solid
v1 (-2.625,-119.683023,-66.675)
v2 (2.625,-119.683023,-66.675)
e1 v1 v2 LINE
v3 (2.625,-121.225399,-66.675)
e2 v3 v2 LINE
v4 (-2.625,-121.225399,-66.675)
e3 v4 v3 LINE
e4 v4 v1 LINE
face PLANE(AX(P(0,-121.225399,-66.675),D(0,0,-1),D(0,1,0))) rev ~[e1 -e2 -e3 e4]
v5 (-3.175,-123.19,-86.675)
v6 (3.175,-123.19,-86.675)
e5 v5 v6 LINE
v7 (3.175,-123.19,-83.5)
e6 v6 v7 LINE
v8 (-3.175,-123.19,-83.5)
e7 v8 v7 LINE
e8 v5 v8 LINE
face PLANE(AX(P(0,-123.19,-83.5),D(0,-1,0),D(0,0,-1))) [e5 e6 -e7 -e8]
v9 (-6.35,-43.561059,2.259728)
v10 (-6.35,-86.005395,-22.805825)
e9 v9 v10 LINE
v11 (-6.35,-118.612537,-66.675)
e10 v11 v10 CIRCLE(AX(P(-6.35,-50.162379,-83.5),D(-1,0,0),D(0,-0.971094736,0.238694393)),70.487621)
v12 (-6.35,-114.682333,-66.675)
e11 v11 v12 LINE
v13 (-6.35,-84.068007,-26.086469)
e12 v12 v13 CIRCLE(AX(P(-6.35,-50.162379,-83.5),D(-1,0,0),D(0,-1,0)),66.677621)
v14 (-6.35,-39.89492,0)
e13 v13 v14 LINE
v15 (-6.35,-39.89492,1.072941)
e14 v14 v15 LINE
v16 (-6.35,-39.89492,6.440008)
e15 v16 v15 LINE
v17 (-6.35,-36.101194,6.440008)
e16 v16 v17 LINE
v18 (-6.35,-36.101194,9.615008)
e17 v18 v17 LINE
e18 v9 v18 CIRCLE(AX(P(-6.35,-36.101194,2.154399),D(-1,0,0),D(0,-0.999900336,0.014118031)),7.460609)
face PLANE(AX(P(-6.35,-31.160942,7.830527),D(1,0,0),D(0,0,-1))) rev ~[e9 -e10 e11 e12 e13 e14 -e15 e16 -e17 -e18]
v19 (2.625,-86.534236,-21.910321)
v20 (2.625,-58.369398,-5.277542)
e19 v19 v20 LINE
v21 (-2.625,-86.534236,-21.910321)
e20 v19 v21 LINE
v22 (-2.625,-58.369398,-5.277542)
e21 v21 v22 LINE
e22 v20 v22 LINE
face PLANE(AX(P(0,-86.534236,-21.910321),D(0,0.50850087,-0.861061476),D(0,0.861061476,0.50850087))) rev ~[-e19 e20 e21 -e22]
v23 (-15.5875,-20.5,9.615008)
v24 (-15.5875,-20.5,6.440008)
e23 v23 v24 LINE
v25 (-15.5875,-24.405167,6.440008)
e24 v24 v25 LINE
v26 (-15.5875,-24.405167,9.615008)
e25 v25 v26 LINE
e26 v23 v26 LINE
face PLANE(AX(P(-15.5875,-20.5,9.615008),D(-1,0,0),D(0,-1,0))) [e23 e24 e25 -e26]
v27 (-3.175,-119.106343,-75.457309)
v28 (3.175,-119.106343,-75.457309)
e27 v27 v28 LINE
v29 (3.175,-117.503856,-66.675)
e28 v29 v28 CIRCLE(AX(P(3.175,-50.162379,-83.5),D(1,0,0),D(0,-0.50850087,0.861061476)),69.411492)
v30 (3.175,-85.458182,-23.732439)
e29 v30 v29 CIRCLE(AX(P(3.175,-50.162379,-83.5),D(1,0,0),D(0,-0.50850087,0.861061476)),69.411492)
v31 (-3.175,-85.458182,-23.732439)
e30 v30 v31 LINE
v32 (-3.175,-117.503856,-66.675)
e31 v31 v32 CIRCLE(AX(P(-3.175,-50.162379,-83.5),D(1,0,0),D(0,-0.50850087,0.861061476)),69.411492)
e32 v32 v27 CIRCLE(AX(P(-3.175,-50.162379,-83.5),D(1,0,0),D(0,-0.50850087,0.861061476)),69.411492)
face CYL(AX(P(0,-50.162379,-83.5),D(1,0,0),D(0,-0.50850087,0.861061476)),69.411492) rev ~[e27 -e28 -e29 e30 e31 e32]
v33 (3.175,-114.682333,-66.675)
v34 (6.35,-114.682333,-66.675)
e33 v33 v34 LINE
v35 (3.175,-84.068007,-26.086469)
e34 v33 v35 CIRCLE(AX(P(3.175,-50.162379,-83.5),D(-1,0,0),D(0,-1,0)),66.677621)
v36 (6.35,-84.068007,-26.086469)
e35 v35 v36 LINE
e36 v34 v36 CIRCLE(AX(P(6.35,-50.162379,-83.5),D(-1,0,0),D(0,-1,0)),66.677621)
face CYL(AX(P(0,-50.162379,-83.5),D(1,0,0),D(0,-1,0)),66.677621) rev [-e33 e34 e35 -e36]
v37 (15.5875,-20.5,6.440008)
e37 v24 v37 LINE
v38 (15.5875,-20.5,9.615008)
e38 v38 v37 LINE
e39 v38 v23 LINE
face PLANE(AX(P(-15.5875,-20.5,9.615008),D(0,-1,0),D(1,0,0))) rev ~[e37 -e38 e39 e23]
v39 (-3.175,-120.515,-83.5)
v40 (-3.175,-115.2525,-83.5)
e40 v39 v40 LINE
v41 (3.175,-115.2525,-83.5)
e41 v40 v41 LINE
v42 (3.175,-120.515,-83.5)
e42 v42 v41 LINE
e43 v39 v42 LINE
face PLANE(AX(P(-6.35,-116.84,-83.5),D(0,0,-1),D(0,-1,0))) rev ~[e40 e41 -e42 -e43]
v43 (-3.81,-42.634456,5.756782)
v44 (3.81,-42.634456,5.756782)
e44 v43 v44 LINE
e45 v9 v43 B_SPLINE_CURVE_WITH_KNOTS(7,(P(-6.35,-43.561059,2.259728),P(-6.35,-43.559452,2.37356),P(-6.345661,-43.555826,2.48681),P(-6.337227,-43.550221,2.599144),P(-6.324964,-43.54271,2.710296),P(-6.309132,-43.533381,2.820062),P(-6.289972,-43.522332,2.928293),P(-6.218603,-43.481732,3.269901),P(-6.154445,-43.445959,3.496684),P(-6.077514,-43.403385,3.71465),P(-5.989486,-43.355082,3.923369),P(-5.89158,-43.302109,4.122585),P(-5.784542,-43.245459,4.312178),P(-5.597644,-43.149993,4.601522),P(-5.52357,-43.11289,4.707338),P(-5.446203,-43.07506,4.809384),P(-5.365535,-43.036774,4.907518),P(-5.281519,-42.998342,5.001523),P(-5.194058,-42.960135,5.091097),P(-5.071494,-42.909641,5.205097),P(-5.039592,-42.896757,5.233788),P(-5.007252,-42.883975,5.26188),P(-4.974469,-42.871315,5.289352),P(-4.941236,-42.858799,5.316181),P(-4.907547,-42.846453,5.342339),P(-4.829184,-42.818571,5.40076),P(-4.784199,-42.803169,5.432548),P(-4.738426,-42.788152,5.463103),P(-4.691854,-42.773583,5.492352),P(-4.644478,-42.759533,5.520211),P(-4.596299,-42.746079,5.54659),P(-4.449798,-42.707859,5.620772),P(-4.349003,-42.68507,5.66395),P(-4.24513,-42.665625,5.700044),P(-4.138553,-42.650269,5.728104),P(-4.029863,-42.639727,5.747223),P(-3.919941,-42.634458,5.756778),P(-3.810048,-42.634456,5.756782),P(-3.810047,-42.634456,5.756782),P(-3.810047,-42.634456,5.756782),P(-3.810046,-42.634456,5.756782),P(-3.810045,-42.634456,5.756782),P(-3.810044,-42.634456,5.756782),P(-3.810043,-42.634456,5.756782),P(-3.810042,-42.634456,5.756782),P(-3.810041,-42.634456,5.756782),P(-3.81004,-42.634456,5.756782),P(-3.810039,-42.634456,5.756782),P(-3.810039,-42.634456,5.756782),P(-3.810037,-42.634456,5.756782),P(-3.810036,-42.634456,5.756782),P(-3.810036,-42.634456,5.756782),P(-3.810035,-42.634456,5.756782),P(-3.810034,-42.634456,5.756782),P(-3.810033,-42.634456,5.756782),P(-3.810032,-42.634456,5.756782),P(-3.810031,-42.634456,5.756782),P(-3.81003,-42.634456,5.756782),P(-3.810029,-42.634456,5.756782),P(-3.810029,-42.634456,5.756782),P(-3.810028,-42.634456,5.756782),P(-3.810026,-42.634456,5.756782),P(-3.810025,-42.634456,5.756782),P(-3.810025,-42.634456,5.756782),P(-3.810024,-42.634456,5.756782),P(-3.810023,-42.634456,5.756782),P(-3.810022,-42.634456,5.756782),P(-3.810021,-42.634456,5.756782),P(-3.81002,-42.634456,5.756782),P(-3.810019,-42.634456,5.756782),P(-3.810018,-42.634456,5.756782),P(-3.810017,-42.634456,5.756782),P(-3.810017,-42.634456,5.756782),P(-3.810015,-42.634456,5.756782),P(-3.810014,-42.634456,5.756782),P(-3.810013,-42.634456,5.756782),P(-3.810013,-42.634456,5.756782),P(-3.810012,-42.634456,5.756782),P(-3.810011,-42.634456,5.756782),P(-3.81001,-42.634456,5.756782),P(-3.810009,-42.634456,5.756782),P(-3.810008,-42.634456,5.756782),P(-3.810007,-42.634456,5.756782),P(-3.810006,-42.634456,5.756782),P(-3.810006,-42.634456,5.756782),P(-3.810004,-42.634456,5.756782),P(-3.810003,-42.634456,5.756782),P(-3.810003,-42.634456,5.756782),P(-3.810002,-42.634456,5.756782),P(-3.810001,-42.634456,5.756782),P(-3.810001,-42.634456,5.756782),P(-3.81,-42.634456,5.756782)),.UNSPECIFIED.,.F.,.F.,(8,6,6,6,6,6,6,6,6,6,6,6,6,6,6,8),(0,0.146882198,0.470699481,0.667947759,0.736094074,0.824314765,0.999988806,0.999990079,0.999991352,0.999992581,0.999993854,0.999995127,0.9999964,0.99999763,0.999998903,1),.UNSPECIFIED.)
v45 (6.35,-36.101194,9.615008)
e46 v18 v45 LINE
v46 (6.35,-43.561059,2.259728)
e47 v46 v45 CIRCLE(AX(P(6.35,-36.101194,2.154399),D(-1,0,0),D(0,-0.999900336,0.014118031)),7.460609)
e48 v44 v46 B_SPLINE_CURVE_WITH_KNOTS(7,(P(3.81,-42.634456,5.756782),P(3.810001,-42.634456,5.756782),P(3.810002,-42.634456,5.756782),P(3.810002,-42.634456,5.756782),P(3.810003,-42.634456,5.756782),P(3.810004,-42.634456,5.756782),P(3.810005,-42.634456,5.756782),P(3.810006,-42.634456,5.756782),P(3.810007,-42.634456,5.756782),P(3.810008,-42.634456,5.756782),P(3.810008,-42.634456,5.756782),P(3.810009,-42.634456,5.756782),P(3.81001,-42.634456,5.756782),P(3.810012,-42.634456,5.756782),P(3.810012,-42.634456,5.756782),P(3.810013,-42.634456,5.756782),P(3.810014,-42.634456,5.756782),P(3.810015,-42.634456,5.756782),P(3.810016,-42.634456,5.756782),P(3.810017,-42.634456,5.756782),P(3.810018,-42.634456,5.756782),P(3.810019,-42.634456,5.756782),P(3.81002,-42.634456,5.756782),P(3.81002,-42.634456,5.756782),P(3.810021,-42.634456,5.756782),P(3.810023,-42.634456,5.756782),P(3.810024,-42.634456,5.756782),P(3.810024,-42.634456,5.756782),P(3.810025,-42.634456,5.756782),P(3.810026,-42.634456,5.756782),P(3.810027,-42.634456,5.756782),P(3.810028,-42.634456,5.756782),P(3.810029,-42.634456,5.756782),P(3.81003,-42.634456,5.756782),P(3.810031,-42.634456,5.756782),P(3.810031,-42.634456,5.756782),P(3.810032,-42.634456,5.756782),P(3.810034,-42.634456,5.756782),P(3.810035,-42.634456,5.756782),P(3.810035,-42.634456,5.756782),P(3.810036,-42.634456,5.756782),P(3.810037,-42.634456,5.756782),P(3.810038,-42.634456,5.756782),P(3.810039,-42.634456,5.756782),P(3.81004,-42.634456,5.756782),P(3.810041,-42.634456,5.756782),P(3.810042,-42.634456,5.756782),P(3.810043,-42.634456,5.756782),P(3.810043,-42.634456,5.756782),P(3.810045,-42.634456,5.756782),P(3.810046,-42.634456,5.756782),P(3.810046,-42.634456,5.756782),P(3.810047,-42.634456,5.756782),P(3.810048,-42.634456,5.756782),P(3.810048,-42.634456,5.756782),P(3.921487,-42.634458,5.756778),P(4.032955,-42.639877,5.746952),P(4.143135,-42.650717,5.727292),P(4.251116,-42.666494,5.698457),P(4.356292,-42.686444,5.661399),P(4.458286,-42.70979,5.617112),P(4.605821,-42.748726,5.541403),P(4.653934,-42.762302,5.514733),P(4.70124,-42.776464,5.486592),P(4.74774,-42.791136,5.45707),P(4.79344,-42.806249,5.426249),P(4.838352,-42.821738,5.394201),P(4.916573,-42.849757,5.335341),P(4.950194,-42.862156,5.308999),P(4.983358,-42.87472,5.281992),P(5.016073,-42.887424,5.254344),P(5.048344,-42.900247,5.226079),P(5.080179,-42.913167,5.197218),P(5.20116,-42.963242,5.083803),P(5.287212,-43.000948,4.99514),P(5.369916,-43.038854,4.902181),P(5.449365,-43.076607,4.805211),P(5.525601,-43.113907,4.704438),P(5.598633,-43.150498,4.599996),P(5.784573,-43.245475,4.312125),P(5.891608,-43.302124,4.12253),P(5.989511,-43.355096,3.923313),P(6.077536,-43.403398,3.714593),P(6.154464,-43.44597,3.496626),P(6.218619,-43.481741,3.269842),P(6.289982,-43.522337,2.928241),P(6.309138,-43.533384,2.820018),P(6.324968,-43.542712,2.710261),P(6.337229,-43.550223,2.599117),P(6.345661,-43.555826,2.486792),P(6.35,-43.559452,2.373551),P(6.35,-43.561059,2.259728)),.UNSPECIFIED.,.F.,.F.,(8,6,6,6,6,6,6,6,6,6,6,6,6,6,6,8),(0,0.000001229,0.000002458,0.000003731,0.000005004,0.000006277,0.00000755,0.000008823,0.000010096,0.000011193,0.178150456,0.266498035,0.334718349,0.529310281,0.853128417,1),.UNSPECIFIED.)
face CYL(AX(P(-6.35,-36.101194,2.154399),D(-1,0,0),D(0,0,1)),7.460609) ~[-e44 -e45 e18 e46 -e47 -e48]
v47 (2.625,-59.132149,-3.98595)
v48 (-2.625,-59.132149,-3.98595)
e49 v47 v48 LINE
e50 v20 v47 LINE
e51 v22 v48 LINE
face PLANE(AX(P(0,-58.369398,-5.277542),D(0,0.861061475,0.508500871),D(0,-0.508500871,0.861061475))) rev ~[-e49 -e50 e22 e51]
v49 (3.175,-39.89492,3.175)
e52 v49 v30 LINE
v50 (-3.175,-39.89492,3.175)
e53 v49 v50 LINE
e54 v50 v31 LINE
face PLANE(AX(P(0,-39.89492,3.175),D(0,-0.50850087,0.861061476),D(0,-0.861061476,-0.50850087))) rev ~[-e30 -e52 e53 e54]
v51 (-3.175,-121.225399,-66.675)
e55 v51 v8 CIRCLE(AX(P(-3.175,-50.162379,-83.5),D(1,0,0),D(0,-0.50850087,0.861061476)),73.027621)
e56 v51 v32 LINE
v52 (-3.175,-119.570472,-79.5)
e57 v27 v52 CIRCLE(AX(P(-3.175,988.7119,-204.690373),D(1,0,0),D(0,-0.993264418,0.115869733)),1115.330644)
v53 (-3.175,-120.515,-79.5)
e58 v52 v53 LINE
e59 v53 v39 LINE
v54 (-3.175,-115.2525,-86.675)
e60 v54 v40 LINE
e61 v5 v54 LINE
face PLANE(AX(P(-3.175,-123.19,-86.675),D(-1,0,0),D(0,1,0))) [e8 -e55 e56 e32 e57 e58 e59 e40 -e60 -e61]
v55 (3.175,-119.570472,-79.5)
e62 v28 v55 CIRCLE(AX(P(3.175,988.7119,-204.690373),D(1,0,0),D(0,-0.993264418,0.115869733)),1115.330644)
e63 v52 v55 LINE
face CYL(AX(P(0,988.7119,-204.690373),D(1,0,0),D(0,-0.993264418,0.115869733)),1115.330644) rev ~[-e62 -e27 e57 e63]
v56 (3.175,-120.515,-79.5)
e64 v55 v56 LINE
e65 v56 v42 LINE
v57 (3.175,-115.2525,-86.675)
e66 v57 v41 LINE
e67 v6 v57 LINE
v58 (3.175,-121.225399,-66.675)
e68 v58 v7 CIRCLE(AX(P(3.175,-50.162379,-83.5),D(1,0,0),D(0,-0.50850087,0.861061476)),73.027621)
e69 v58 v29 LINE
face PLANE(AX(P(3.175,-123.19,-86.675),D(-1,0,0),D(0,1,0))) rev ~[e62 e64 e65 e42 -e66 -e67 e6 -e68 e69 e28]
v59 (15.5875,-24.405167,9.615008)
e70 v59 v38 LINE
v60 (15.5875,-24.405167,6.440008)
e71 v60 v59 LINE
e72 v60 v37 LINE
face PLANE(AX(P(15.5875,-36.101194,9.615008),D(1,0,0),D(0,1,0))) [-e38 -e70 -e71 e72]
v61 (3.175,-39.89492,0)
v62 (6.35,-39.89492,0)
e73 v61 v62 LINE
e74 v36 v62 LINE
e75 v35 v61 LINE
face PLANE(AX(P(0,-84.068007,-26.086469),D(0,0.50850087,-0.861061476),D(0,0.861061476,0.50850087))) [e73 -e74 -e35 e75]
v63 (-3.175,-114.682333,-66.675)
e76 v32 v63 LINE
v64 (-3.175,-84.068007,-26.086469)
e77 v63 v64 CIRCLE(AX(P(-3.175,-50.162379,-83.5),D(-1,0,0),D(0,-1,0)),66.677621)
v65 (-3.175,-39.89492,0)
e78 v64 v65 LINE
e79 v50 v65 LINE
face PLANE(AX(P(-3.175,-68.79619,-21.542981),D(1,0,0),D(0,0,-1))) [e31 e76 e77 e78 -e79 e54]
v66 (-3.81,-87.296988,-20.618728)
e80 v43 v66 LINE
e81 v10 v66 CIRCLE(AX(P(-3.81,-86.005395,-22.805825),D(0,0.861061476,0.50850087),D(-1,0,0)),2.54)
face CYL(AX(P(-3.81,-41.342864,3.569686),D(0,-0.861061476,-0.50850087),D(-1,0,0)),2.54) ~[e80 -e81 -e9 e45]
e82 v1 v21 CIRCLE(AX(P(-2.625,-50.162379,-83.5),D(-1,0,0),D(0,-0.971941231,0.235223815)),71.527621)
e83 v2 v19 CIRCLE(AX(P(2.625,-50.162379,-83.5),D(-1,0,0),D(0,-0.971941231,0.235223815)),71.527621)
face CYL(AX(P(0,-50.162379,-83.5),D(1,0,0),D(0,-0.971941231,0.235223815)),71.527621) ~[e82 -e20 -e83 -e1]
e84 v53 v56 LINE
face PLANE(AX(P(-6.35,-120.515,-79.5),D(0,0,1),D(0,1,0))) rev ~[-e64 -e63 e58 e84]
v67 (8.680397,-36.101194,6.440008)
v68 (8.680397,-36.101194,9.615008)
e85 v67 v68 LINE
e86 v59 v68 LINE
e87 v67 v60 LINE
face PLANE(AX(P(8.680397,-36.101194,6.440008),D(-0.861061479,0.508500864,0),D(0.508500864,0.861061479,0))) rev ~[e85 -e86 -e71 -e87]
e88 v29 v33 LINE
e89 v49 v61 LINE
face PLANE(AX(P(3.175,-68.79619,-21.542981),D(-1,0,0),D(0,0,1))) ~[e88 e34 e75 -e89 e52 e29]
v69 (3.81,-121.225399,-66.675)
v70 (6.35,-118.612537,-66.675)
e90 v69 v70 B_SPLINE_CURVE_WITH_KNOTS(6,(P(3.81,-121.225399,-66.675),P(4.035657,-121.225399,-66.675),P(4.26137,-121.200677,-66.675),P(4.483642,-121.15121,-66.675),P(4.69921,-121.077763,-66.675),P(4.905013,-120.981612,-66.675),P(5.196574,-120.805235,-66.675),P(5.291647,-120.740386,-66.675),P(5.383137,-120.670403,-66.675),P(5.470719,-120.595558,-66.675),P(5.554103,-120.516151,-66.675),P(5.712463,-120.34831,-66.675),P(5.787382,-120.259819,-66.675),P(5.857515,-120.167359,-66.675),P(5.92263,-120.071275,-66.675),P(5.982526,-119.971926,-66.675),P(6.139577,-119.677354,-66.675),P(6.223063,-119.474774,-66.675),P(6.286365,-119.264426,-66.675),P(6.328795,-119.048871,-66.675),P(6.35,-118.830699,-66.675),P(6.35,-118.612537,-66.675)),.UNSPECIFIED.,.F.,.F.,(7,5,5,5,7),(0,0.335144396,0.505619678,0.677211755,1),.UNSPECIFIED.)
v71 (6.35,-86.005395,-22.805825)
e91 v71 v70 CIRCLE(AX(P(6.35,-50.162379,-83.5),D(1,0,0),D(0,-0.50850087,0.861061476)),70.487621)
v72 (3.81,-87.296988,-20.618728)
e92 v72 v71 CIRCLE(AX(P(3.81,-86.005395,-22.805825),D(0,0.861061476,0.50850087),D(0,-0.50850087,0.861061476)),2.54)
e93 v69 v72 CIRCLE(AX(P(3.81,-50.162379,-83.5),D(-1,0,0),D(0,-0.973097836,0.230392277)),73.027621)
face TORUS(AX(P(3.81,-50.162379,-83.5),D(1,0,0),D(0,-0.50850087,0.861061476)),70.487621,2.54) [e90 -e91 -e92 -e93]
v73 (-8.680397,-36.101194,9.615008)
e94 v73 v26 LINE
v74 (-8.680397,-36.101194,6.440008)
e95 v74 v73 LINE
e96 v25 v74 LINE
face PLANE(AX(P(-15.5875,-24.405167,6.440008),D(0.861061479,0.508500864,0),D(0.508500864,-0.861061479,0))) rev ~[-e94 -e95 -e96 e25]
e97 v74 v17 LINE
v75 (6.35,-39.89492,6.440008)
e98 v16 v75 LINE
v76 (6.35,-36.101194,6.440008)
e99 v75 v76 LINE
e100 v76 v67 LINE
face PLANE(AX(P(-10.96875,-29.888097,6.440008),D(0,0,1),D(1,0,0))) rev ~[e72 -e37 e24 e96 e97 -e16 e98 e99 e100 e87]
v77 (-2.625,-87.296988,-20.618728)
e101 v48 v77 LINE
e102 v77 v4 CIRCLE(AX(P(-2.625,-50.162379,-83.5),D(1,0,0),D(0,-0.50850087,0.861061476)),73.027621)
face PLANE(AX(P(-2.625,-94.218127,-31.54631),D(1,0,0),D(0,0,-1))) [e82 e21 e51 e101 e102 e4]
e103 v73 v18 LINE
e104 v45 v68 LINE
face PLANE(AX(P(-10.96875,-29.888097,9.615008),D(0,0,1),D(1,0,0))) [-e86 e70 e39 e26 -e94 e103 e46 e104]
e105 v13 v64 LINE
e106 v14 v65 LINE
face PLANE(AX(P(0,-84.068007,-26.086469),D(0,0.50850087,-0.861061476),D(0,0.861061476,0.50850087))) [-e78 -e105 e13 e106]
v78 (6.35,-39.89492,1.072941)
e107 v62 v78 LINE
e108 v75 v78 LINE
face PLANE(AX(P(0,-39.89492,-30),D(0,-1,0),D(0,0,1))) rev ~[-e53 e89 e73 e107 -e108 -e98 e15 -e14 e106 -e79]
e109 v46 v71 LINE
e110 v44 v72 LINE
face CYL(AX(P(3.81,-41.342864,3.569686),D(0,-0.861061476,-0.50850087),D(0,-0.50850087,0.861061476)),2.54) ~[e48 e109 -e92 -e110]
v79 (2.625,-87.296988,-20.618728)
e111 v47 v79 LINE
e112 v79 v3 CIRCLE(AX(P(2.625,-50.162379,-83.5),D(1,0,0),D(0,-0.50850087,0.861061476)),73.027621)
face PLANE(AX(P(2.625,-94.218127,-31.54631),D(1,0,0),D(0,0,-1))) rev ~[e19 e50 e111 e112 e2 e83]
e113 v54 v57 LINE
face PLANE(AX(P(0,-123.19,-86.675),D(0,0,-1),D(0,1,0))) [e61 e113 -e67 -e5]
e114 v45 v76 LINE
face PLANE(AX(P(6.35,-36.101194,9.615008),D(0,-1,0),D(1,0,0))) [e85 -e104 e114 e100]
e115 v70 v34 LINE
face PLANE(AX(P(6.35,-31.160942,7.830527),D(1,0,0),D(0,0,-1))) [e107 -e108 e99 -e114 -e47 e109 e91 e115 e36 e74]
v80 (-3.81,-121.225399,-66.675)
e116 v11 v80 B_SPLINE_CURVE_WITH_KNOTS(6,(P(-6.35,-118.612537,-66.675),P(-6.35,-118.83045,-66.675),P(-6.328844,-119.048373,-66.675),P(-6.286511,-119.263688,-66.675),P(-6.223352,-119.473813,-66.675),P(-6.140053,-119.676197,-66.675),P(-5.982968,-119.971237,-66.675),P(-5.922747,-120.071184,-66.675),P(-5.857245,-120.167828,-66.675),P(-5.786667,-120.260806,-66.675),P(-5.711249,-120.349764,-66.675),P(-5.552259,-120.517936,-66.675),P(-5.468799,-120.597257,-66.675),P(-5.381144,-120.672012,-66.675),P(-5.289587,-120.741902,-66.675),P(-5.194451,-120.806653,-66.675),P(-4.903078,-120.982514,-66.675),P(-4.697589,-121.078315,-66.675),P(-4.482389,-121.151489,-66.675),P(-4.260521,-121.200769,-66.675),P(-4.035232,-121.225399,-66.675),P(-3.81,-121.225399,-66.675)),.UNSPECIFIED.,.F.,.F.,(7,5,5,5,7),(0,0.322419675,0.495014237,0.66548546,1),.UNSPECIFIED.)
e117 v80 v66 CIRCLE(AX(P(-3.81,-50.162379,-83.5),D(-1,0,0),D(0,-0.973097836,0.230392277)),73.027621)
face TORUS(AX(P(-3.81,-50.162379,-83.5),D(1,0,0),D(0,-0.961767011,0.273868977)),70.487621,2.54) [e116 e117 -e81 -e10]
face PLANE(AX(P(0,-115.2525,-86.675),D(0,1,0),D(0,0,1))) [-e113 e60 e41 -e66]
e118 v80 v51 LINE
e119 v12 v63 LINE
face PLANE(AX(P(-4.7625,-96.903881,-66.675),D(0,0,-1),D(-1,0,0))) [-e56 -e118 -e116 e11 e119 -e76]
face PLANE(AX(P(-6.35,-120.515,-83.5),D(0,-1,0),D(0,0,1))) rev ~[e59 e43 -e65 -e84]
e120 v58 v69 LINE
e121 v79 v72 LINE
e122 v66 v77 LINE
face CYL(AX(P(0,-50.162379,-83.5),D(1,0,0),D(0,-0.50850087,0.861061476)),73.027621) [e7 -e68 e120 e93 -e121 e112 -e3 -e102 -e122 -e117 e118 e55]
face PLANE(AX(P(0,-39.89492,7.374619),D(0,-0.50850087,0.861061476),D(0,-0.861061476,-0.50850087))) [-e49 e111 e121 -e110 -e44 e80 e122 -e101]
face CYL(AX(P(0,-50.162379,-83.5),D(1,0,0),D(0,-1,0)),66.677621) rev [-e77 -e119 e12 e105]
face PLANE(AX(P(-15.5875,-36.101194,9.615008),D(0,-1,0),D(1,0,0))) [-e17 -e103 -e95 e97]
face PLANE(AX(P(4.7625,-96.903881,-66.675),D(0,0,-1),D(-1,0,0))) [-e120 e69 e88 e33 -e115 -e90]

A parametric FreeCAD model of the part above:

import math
import FreeCAD as App
import Part
import Sketcher
Q = App.Units.Quantity


def edges_at(feature, points):
    """Names of the edges that pass closest to the given points."""
    edges = feature.Shape.Edges
    near = lambda p: min(range(len(edges)), key=lambda i: edges[i].distToShape(Part.Vertex(*p))[0])
    return sorted({f"Edge{near(p) + 1}" for p in points})


def add_polygon(sketch, points):
    """Adds a closed chain of lines whose ends are joined by coincident constraints."""
    first, n = sketch.GeometryCount, len(points)
    for a, b in zip(points, points[1:] + points[:1]):
        sketch.addGeometry(Part.LineSegment(App.Vector(*a, 0), App.Vector(*b, 0)), False)
    for i in range(n):
        sketch.addConstraint(Sketcher.Constraint("Coincident", first + i, 2, first + (i + 1) % n, 1))

doc = App.newDocument("Part")
body = doc.addObject("PartDesign::Body", "Body")

sketch1 = body.newObject("Sketcher::SketchObject", "Sketch")
sketch1.AttachmentSupport = (doc.getObject("YZ_Plane"), [""])
sketch1.MapMode = "FlatFace"
add_polygon(sketch1, [(0, 30), (-50.8, 0), (0, 0)])
sketch1.addConstraint(Sketcher.Constraint("Horizontal", 1))
sketch1.addConstraint(Sketcher.Constraint("Vertical", 2))
sketch1.addConstraint(Sketcher.Constraint("Coincident", 1, 2, -1, 1))
sketch1.addConstraint(Sketcher.Constraint("DistanceX", 1, 1, 1, 2, Q("2 in")))
sketch1.addConstraint(Sketcher.Constraint("DistanceY", 2, 1, 2, 2, Q("30 mm")))
revolution = body.newObject("PartDesign::Revolution", "Revolution")
revolution.Profile = sketch1
revolution.ReferenceAxis = (sketch1, ["H_Axis"])
revolution.Angle = 360

sketch2 = body.newObject("Sketcher::SketchObject", "Sketch001")
sketch2.AttachmentSupport = (doc.getObject("YZ_Plane"), [""])
sketch2.MapMode = "FlatFace"
add_polygon(sketch2, [(0, 24.92), (-45.72, 0), (0, 0)])
sketch2.addConstraint(Sketcher.Constraint("Horizontal", 1))
sketch2.addConstraint(Sketcher.Constraint("Vertical", 2))
sketch2.addConstraint(Sketcher.Constraint("Coincident", 1, 2, -1, 1))
sketch2.addConstraint(Sketcher.Constraint("DistanceX", 1, 1, 1, 2, Q("1.8 in")))
sketch2.addConstraint(Sketcher.Constraint("DistanceY", 2, 1, 2, 2, Q("24.92 mm")))
groove = body.newObject("PartDesign::Groove", "Groove")
groove.Profile = sketch2
groove.ReferenceAxis = (sketch2, ["H_Axis"])
groove.Angle = 360

sketch3 = body.newObject("Sketcher::SketchObject", "Sketch002")
sketch3.AttachmentSupport = (doc.getObject("YZ_Plane"), [""])
sketch3.MapMode = "FlatFace"
add_polygon(sketch3, [(-39.89492, 6.440008), (-55.729611, 6.440008), (-55.729611, -6.440008), (-39.89492, -6.440008)])
sketch3.addConstraint(Sketcher.Constraint("Horizontal", 0))
sketch3.addConstraint(Sketcher.Constraint("Vertical", 1))
sketch3.addConstraint(Sketcher.Constraint("Horizontal", 2))
sketch3.addConstraint(Sketcher.Constraint("Vertical", 3))
sketch3.addConstraint(Sketcher.Constraint("DistanceX", 0, 2, 0, 1, Q("15.834691 mm")))
sketch3.addConstraint(Sketcher.Constraint("DistanceY", 1, 2, 1, 1, Q("12.880016 mm")))
sketch3.addConstraint(Sketcher.Constraint("DistanceX", 0, 2, -1, 1, Q("55.729611 mm")))
sketch3.addConstraint(Sketcher.Constraint("DistanceY", -1, 1, 0, 2, Q("6.440008 mm")))
pocket1 = body.newObject("PartDesign::Pocket", "Pocket")
pocket1.Profile = sketch3
pocket1.Length = Q("0.6 in")
pocket1.Midplane = True

sketch4 = body.newObject("Sketcher::SketchObject", "Sketch003")
sketch4.AttachmentSupport = (doc.getObject("XY_Plane"), [""])
sketch4.MapMode = "FlatFace"
sketch4.AttachmentOffset = App.Placement(App.Vector(0, 0, 30), App.Rotation())
add_polygon(sketch4, [(3.175, 0), (3.175, -3.175), (6.35, -3.175), (6.35, 0)])
sketch4.addConstraint(Sketcher.Constraint("Vertical", 0))
sketch4.addConstraint(Sketcher.Constraint("Horizontal", 1))
sketch4.addConstraint(Sketcher.Constraint("Vertical", 2))
sketch4.addConstraint(Sketcher.Constraint("Horizontal", 3))
sketch4.addConstraint(Sketcher.Constraint("PointOnObject", 2, 2, -1))
sketch4.addConstraint(Sketcher.Constraint("Equal", 3, 0))
sketch4.addConstraint(Sketcher.Constraint("DistanceX", 1, 1, 1, 2, Q("0.125 in")))
sketch4.addConstraint(Sketcher.Constraint("DistanceX", -1, 1, 1, 2, Q("0.25 in")))
pocket2 = body.newObject("PartDesign::Pocket", "Pocket001")
pocket2.Profile = sketch4
pocket2.Length = 7.69691

sketch5 = body.newObject("Sketcher::SketchObject", "Sketch004")
sketch5.AttachmentSupport = (doc.getObject("XY_Plane"), [""])
sketch5.MapMode = "FlatFace"
sketch5.AttachmentOffset = App.Placement(App.Vector(0, 0, 30), App.Rotation())
add_polygon(sketch5, [(-6.35, 0), (-6.35, -3.175), (-3.175, -3.175), (-3.175, 0)])
sketch5.addConstraint(Sketcher.Constraint("Vertical", 0))
sketch5.addConstraint(Sketcher.Constraint("Horizontal", 1))
sketch5.addConstraint(Sketcher.Constraint("Vertical", 2))
sketch5.addConstraint(Sketcher.Constraint("Horizontal", 3))
sketch5.addConstraint(Sketcher.Constraint("PointOnObject", 2, 2, -1))
sketch5.addConstraint(Sketcher.Constraint("Equal", 3, 0))
sketch5.addConstraint(Sketcher.Constraint("DistanceX", 1, 1, 1, 2, Q("0.125 in")))
sketch5.addConstraint(Sketcher.Constraint("DistanceX", 0, 2, -1, 1, Q("0.25 in")))
pocket3 = body.newObject("PartDesign::Pocket", "Pocket002")
pocket3.Profile = sketch5
pocket3.Length = 7.69691

sketch6 = body.newObject("Sketcher::SketchObject", "Sketch005")
sketch6.AttachmentSupport = (doc.getObject("YZ_Plane"), [""])
sketch6.MapMode = "FlatFace"
sketch6.addGeometry(Part.LineSegment(App.Vector(-39.89492, 7.374619, 0), App.Vector(-87.296988, -20.618728, 0)), False)
sketch6.addGeometry(Part.ArcOfCircle(Part.Circle(App.Vector(-50.162379, -83.5, 0), App.Vector(0, 0, 1), 73.027621), math.radians(120.564025), math.radians(164.105376)), False)
sketch6.addGeometry(Part.ArcOfCircle(Part.Circle(App.Vector(-50.162379, -83.5, 0), App.Vector(0, 0, 1), 73.027621), math.radians(164.105376), math.radians(180)), False)
sketch6.addGeometry(Part.LineSegment(App.Vector(-123.19, -83.5, 0), App.Vector(-123.19, -86.675, 0)), False)
sketch6.addGeometry(Part.LineSegment(App.Vector(-123.19, -86.675, 0), App.Vector(-115.2525, -86.675, 0)), False)
sketch6.addGeometry(Part.LineSegment(App.Vector(-115.2525, -86.675, 0), App.Vector(-115.2525, -83.5, 0)), False)
sketch6.addGeometry(Part.LineSegment(App.Vector(-115.2525, -83.5, 0), App.Vector(-116.84, -83.5, 0)), False)
sketch6.addGeometry(Part.ArcOfCircle(Part.Circle(App.Vector(-50.162379, -83.5, 0), App.Vector(0, 0, 1), 66.677621), math.radians(120.564025), math.radians(180)), False)
sketch6.addGeometry(Part.LineSegment(App.Vector(-84.068007, -26.086469, 0), App.Vector(0, 23.559992, 0)), False)
sketch6.addGeometry(Part.LineSegment(App.Vector(0, 23.559992, 0), App.Vector(0, 30.934611, 0)), False)
sketch6.addGeometry(Part.LineSegment(App.Vector(0, 30.934611, 0), App.Vector(-39.89492, 7.374619, 0)), False)
sketch6.addConstraint(Sketcher.Constraint("Tangent", 0, 2, 1, 1))
sketch6.addConstraint(Sketcher.Constraint("Tangent", 1, 2, 2, 1))
sketch6.addConstraint(Sketcher.Constraint("Tangent", 2, 2, 3, 1))
sketch6.addConstraint(Sketcher.Constraint("Coincident", 3, 2, 4, 1))
sketch6.addConstraint(Sketcher.Constraint("Coincident", 4, 2, 5, 1))
sketch6.addConstraint(Sketcher.Constraint("Coincident", 5, 2, 6, 1))
sketch6.addConstraint(Sketcher.Constraint("Coincident", 6, 2, 7, 2))
sketch6.addConstraint(Sketcher.Constraint("Tangent", 7, 1, 8, 1))
sketch6.addConstraint(Sketcher.Constraint("Coincident", 8, 2, 9, 1))
sketch6.addConstraint(Sketcher.Constraint("Coincident", 9, 2, 10, 1))
sketch6.addConstraint(Sketcher.Constraint("Coincident", 10, 2, 0, 1))
sketch6.addConstraint(Sketcher.Constraint("Vertical", 3))
sketch6.addConstraint(Sketcher.Constraint("Horizontal", 4))
sketch6.addConstraint(Sketcher.Constraint("Vertical", 5))
sketch6.addConstraint(Sketcher.Constraint("Horizontal", 6))
sketch6.addConstraint(Sketcher.Constraint("Vertical", 9))
sketch6.addConstraint(Sketcher.Constraint("Coincident", 7, 3, 1, 3))
sketch6.addConstraint(Sketcher.Constraint("Equal", 1, 2))
sketch6.addConstraint(Sketcher.Constraint("PointOnObject", 8, 2, -2))
sketch6.addConstraint(Sketcher.Constraint("Parallel", 0, 8))
sketch6.addConstraint(Sketcher.Constraint("Parallel", 8, 10))
sketch6.addConstraint(Sketcher.Constraint("Horizontal", 2, 2, 5, 2))
sketch6.addConstraint(Sketcher.Constraint("DistanceY", 1, 2, -1, 1, Q("2.5 in")))
sketch6.addConstraint(Sketcher.Constraint("DistanceX", 6, 2, -1, 1, Q("4.6 in")))
sketch6.addConstraint(Sketcher.Constraint("DistanceX", 4, 1, 4, 2, Q("0.3125 in")))
sketch6.addConstraint(Sketcher.Constraint("DistanceX", 6, 2, 6, 1, Q("0.0625 in")))
sketch6.addConstraint(Sketcher.Constraint("DistanceY", 3, 2, 3, 1, Q("0.125 in")))
sketch6.addConstraint(Sketcher.Constraint("Radius", 1, Q("73.027621 mm")))
sketch6.addConstraint(Sketcher.Constraint("DistanceY", 9, 1, 9, 2, Q("7.374619 mm")))
sketch6.addConstraint(Sketcher.Constraint("DistanceY", 1, 3, -1, 1, Q("83.5 mm")))
sketch6.addConstraint(Sketcher.Constraint("DistanceX", 10, 2, -1, 1, Q("39.89492 mm")))
pad1 = body.newObject("PartDesign::Pad", "Pad")
pad1.Profile = sketch6
pad1.Length = Q("0.5 in")
pad1.Midplane = True

sketch7 = body.newObject("Sketcher::SketchObject", "Sketch006")
sketch7.AttachmentSupport = (doc.getObject("YZ_Plane"), [""])
sketch7.MapMode = "FlatFace"
sketch7.addGeometry(Part.LineSegment(App.Vector(-39.89492, 3.175, 0), App.Vector(-85.458182, -23.732439, 0)), False)
sketch7.addGeometry(Part.ArcOfCircle(Part.Circle(App.Vector(-50.162379, -83.5, 0), App.Vector(0, 0, 1), 69.411492), math.radians(120.564025), math.radians(173.346208)), False)
sketch7.addGeometry(Part.ArcOfCircle(Part.Circle(App.Vector(988.7119, -204.690373, 0), App.Vector(0, 0, 1), 1115.330644), math.radians(173.346208), math.radians(173.761999)), False)
sketch7.addGeometry(Part.LineSegment(App.Vector(-120.015, -83.5, 0), App.Vector(-116.84, -83.5, 0)), False)
sketch7.addGeometry(Part.ArcOfCircle(Part.Circle(App.Vector(-50.162379, -83.5, 0), App.Vector(0, 0, 1), 66.677621), math.radians(120.564025), math.radians(180)), False)
sketch7.addGeometry(Part.LineSegment(App.Vector(-84.068007, -26.086469, 0), App.Vector(0, 23.559992, 0)), False)
sketch7.addGeometry(Part.LineSegment(App.Vector(0, 23.559992, 0), App.Vector(0, 26.734992, 0)), False)
sketch7.addGeometry(Part.LineSegment(App.Vector(0, 26.734992, 0), App.Vector(-39.89492, 3.175, 0)), False)
sketch7.addConstraint(Sketcher.Constraint("Coincident", 0, 2, 1, 1))
sketch7.addConstraint(Sketcher.Constraint("Coincident", 1, 2, 2, 1))
sketch7.addConstraint(Sketcher.Constraint("Coincident", 2, 2, 3, 1))
sketch7.addConstraint(Sketcher.Constraint("Coincident", 3, 2, 4, 2))
sketch7.addConstraint(Sketcher.Constraint("Coincident", 4, 1, 5, 1))
sketch7.addConstraint(Sketcher.Constraint("Coincident", 5, 2, 6, 1))
sketch7.addConstraint(Sketcher.Constraint("Coincident", 6, 2, 7, 1))
sketch7.addConstraint(Sketcher.Constraint("Coincident", 7, 2, 0, 1))
sketch7.addConstraint(Sketcher.Constraint("Horizontal", 3))
sketch7.addConstraint(Sketcher.Constraint("Vertical", 6))
sketch7.addConstraint(Sketcher.Constraint("Coincident", 4, 3, 1, 3))
sketch7.addConstraint(Sketcher.Constraint("PointOnObject", 5, 2, -2))
sketch7.addConstraint(Sketcher.Constraint("DistanceX", 3, 2, -1, 1, Q("4.6 in")))
sketch7.addConstraint(Sketcher.Constraint("DistanceX", 3, 1, 3, 2, Q("0.125 in")))
sketch7.addConstraint(Sketcher.Constraint("DistanceY", 6, 1, 6, 2, Q("0.125 in")))
sketch7.addConstraint(Sketcher.Constraint("DistanceY", -1, 1, 7, 2, Q("0.125 in")))
sketch7.addConstraint(Sketcher.Constraint("Radius", 1, Q("69.411492 mm")))
sketch7.addConstraint(Sketcher.Constraint("Radius", 4, Q("66.677621 mm")))
sketch7.addConstraint(Sketcher.Constraint("Radius", 2, Q("1115.330644 mm")))
sketch7.addConstraint(Sketcher.Constraint("DistanceY", 1, 3, -1, 1, Q("83.5 mm")))
sketch7.addConstraint(Sketcher.Constraint("DistanceX", -1, 1, 2, 3, Q("988.7119 mm")))
sketch7.addConstraint(Sketcher.Constraint("DistanceY", 1, 2, 5, 2, Q("99.017301 mm")))
sketch7.addConstraint(Sketcher.Constraint("Distance", 5, Q("97.632991 mm")))
sketch7.addConstraint(Sketcher.Constraint("DistanceY", 0, 2, -1, 1, Q("23.732439 mm")))
sketch7.addConstraint(Sketcher.Constraint("DistanceY", 1, 2, -1, 1, Q("75.457309 mm")))
sketch7.addConstraint(Sketcher.Constraint("DistanceX", 7, 2, -1, 1, Q("39.89492 mm")))
pocket4 = body.newObject("PartDesign::Pocket", "Pocket003")
pocket4.Profile = sketch7
pocket4.Length = Q("0.125 in")
doc.recompute()

mirrored = body.newObject("PartDesign::Mirrored", "Mirrored")
mirrored.Originals = [pocket4]
mirrored.MirrorPlane = (doc.getObject("YZ_Plane"), [""])
body.Tip = mirrored

sketch8 = body.newObject("Sketcher::SketchObject", "Sketch007")
sketch8.AttachmentSupport = (doc.getObject("YZ_Plane"), [""])
sketch8.MapMode = "FlatFace"
add_polygon(sketch8, [(0, 0), (0, 24.919991), (-39.89492, 0.536471), (-39.89492, 0)])
sketch8.addConstraint(Sketcher.Constraint("Vertical", 0))
sketch8.addConstraint(Sketcher.Constraint("Vertical", 2))
sketch8.addConstraint(Sketcher.Constraint("Horizontal", 3))
sketch8.addConstraint(Sketcher.Constraint("Coincident", 3, 2, -1, 1))
sketch8.addConstraint(Sketcher.Constraint("DistanceX", 3, 1, 3, 2, Q("39.89492 mm")))
sketch8.addConstraint(Sketcher.Constraint("DistanceY", 0, 1, 0, 2, Q("24.919991 mm")))
sketch8.addConstraint(Sketcher.Constraint("DistanceY", 2, 2, 2, 1, Q("0.536471 mm")))
groove2 = body.newObject("PartDesign::Groove", "Groove001")
groove2.Profile = sketch8
groove2.ReferenceAxis = (sketch8, ["H_Axis"])
groove2.Angle = 360

sketch9 = body.newObject("Sketcher::SketchObject", "Sketch008")
sketch9.AttachmentSupport = (doc.getObject("YZ_Plane"), [""])
sketch9.MapMode = "FlatFace"
sketch9.AttachmentOffset = App.Placement(App.Vector(0, 0, -0.25 * 25.4), App.Rotation())
sketch9.addGeometry(Part.ArcOfCircle(Part.Circle(App.Vector(-50.162379, -83.5, 0), App.Vector(0, 0, 1), 66.677621), math.radians(176.560753), math.radians(180)), False)
sketch9.addGeometry(Part.LineSegment(App.Vector(-116.84, -83.5, 0), App.Vector(-120.515, -83.5, 0)), False)
sketch9.addGeometry(Part.LineSegment(App.Vector(-120.515, -83.5, 0), App.Vector(-120.515, -79.5, 0)), False)
sketch9.addGeometry(Part.LineSegment(App.Vector(-120.515, -79.5, 0), App.Vector(-116.719912, -79.5, 0)), False)
sketch9.addConstraint(Sketcher.Constraint("Coincident", 0, 2, 1, 1))
sketch9.addConstraint(Sketcher.Constraint("Coincident", 1, 2, 2, 1))
sketch9.addConstraint(Sketcher.Constraint("Coincident", 2, 2, 3, 1))
sketch9.addConstraint(Sketcher.Constraint("Coincident", 3, 2, 0, 1))
sketch9.addConstraint(Sketcher.Constraint("Horizontal", 1))
sketch9.addConstraint(Sketcher.Constraint("Vertical", 2))
sketch9.addConstraint(Sketcher.Constraint("Horizontal", 3))
sketch9.addConstraint(Sketcher.Constraint("DistanceX", 0, 2, -1, 1, Q("4.6 in")))
sketch9.addConstraint(Sketcher.Constraint("Radius", 0, Q("66.677621 mm")))
sketch9.addConstraint(Sketcher.Constraint("DistanceX", 1, 2, 1, 1, Q("3.675 mm")))
sketch9.addConstraint(Sketcher.Constraint("DistanceY", 2, 1, 2, 2, Q("4 mm")))
sketch9.addConstraint(Sketcher.Constraint("DistanceX", 3, 1, 3, 2, Q("3.795088 mm")))
sketch9.addConstraint(Sketcher.Constraint("DistanceY", 0, 3, -1, 1, Q("83.5 mm")))
pocket5 = body.newObject("PartDesign::Pocket", "Pocket004")
pocket5.Profile = sketch9
pocket5.Type = "ThroughAll"
pocket5.Reversed = True

sketch10 = body.newObject("Sketcher::SketchObject", "Sketch009")
sketch10.AttachmentSupport = (doc.getObject("YZ_Plane"), [""])
sketch10.MapMode = "FlatFace"
add_polygon(sketch10, [(0, 30), (0, -30), (-39.89492, -30), (-39.89492, 6.440008)])
sketch10.addConstraint(Sketcher.Constraint("Vertical", 0))
sketch10.addConstraint(Sketcher.Constraint("Horizontal", 1))
sketch10.addConstraint(Sketcher.Constraint("Vertical", 2))
sketch10.addConstraint(Sketcher.Constraint("Symmetric", 0, 2, 3, 2, -1, 1))
sketch10.addConstraint(Sketcher.Constraint("DistanceY", 0, 2, 0, 1, Q("60 mm")))
sketch10.addConstraint(Sketcher.Constraint("DistanceX", 1, 2, 1, 1, Q("39.89492 mm")))
sketch10.addConstraint(Sketcher.Constraint("DistanceY", 2, 1, 2, 2, Q("36.440008 mm")))
pocket6 = body.newObject("PartDesign::Pocket", "Pocket005")
pocket6.Profile = sketch10
pocket6.Length = Q("3.2 in")
pocket6.Midplane = True

sketch11 = body.newObject("Sketcher::SketchObject", "Sketch010")
sketch11.AttachmentSupport = (doc.getObject("YZ_Plane"), [""])
sketch11.MapMode = "FlatFace"
sketch11.AttachmentOffset = App.Placement(App.Vector(0, 0, -0.25 * 25.4), App.Rotation())
sketch11.addGeometry(Part.LineSegment(App.Vector(-20.5, 9.615008, 0), App.Vector(-20.5, 6.440008, 0)), False)
sketch11.addGeometry(Part.LineSegment(App.Vector(-20.5, 6.440008, 0), App.Vector(-41.477527, 6.440008, 0)), False)
sketch11.addGeometry(Part.LineSegment(App.Vector(-41.477527, 6.440008, 0), App.Vector(-42.634456, 5.756782, 0)), False)
sketch11.addGeometry(Part.ArcOfCircle(Part.Circle(App.Vector(-36.101194, 2.154399, 0), App.Vector(0, 0, 1), 7.460609), math.radians(90), math.radians(151.12805)), False)
sketch11.addGeometry(Part.LineSegment(App.Vector(-36.101194, 9.615008, 0), App.Vector(-20.5, 9.615008, 0)), False)
sketch11.addConstraint(Sketcher.Constraint("Coincident", 0, 2, 1, 1))
sketch11.addConstraint(Sketcher.Constraint("Coincident", 1, 2, 2, 1))
sketch11.addConstraint(Sketcher.Constraint("Coincident", 2, 2, 3, 2))
sketch11.addConstraint(Sketcher.Constraint("Tangent", 3, 1, 4, 1))
sketch11.addConstraint(Sketcher.Constraint("Coincident", 4, 2, 0, 1))
sketch11.addConstraint(Sketcher.Constraint("Vertical", 0))
sketch11.addConstraint(Sketcher.Constraint("Horizontal", 1))
sketch11.addConstraint(Sketcher.Constraint("Horizontal", 4))
sketch11.addConstraint(Sketcher.Constraint("DistanceY", 0, 2, 0, 1, Q("0.125 in")))
sketch11.addConstraint(Sketcher.Constraint("Radius", 3, Q("7.460609 mm")))
sketch11.addConstraint(Sketcher.Constraint("DistanceY", -1, 1, 3, 3, Q("2.154399 mm")))
sketch11.addConstraint(Sketcher.Constraint("DistanceX", 0, 2, -1, 1, Q("20.5 mm")))
sketch11.addConstraint(Sketcher.Constraint("Distance", 2, Q("1.343608 mm")))
sketch11.addConstraint(Sketcher.Constraint("DistanceX", 1, 2, 1, 1, Q("20.977527 mm")))
sketch11.addConstraint(Sketcher.Constraint("DistanceX", 4, 1, 4, 2, Q("15.601194 mm")))
pad2 = body.newObject("PartDesign::Pad", "Pad001")
pad2.Profile = sketch11
pad2.Length = Q("0.5 in")

sketch12 = body.newObject("Sketcher::SketchObject", "Sketch011")
sketch12.AttachmentSupport = (doc.getObject("YZ_Plane"), [""])
sketch12.MapMode = "FlatFace"
sketch12.AttachmentOffset = App.Placement(App.Vector(0, 0, -0.25 * 25.4), App.Rotation())
add_polygon(sketch12, [(0, 9.615008), (-36.101194, 9.615008), (-36.101194, 30.934611), (0, 30.934611)])
sketch12.addConstraint(Sketcher.Constraint("Horizontal", 0))
sketch12.addConstraint(Sketcher.Constraint("Vertical", 1))
sketch12.addConstraint(Sketcher.Constraint("Horizontal", 2))
sketch12.addConstraint(Sketcher.Constraint("Vertical", 3))
sketch12.addConstraint(Sketcher.Constraint("PointOnObject", 2, 2, -2))
sketch12.addConstraint(Sketcher.Constraint("DistanceX", 0, 2, 0, 1, Q("36.101194 mm")))
sketch12.addConstraint(Sketcher.Constraint("DistanceY", 1, 1, 1, 2, Q("21.319603 mm")))
sketch12.addConstraint(Sketcher.Constraint("DistanceY", -1, 1, 0, 2, Q("9.615008 mm")))
pocket7 = body.newObject("PartDesign::Pocket", "Pocket006")
pocket7.Profile = sketch12
pocket7.Type = "ThroughAll"
pocket7.Reversed = True

sketch13 = body.newObject("Sketcher::SketchObject", "Sketch012")
sketch13.AttachmentSupport = (doc.getObject("XY_Plane"), [""])
sketch13.MapMode = "FlatFace"
sketch13.AttachmentOffset = App.Placement(App.Vector(0, 0, 9.615008), App.Rotation())
add_polygon(sketch13, [(-15.5875, -36.101194), (-6.35, -36.101194), (-6.35, -20.5), (-15.5875, -20.5)])
add_polygon(sketch13, [(6.35, -36.101194), (15.5875, -36.101194), (15.5875, -20.5), (6.35, -20.5)])
sketch13.addConstraint(Sketcher.Constraint("Horizontal", 0))
sketch13.addConstraint(Sketcher.Constraint("Vertical", 1))
sketch13.addConstraint(Sketcher.Constraint("Horizontal", 2))
sketch13.addConstraint(Sketcher.Constraint("Vertical", 3))
sketch13.addConstraint(Sketcher.Constraint("Horizontal", 4))
sketch13.addConstraint(Sketcher.Constraint("Vertical", 5))
sketch13.addConstraint(Sketcher.Constraint("Horizontal", 6))
sketch13.addConstraint(Sketcher.Constraint("Vertical", 7))
sketch13.addConstraint(Sketcher.Constraint("Symmetric", 3, 2, 4, 2, -2))
sketch13.addConstraint(Sketcher.Constraint("Symmetric", 1, 2, 6, 2, -2))
sketch13.addConstraint(Sketcher.Constraint("DistanceX", 1, 2, 6, 2, Q("0.5 in")))
sketch13.addConstraint(Sketcher.Constraint("DistanceX", 0, 1, 0, 2, Q("9.2375 mm")))
sketch13.addConstraint(Sketcher.Constraint("DistanceY", 1, 2, -1, 1, Q("20.5 mm")))
sketch13.addConstraint(Sketcher.Constraint("DistanceY", 1, 1, 1, 2, Q("15.601194 mm")))
pad3 = body.newObject("PartDesign::Pad", "Pad002")
pad3.Profile = sketch13
pad3.Length = Q("0.125 in")
pad3.Reversed = True

sketch14 = body.newObject("Sketcher::SketchObject", "Sketch013")
sketch14.AttachmentSupport = (doc.getObject("XY_Plane"), [""])
sketch14.MapMode = "FlatFace"
sketch14.AttachmentOffset = App.Placement(App.Vector(0, 0, -86.675), App.Rotation())
add_polygon(sketch14, [(6.35, -70.617763), (6.35, -123.19), (3.175, -123.19), (3.175, -70.617763)])
add_polygon(sketch14, [(-3.175, -70.617763), (-3.175, -123.19), (-6.35, -123.19), (-6.35, -70.617763)])
sketch14.addConstraint(Sketcher.Constraint("Vertical", 0))
sketch14.addConstraint(Sketcher.Constraint("Horizontal", 1))
sketch14.addConstraint(Sketcher.Constraint("Vertical", 2))
sketch14.addConstraint(Sketcher.Constraint("Horizontal", 3))
sketch14.addConstraint(Sketcher.Constraint("Vertical", 4))
sketch14.addConstraint(Sketcher.Constraint("Horizontal", 5))
sketch14.addConstraint(Sketcher.Constraint("Vertical", 6))
sketch14.addConstraint(Sketcher.Constraint("Horizontal", 7))
sketch14.addConstraint(Sketcher.Constraint("Symmetric", 1, 2, 4, 2, -2))
sketch14.addConstraint(Sketcher.Constraint("Symmetric", 3, 2, 6, 2, -2))
sketch14.addConstraint(Sketcher.Constraint("DistanceX", 5, 2, 0, 2, Q("0.5 in")))
sketch14.addConstraint(Sketcher.Constraint("DistanceX", 1, 2, 1, 1, Q("0.125 in")))
sketch14.addConstraint(Sketcher.Constraint("DistanceY", 0, 2, -1, 1, Q("4.85 in")))
sketch14.addConstraint(Sketcher.Constraint("DistanceY", 0, 2, 0, 1, Q("52.572237 mm")))
pocket8 = body.newObject("PartDesign::Pocket", "Pocket007")
pocket8.Profile = sketch14
pocket8.Length = 20
pocket8.Reversed = True

sketch15 = body.newObject("Sketcher::SketchObject", "Sketch014")
sketch15.AttachmentSupport = (doc.getObject("XY_Plane"), [""])
sketch15.MapMode = "FlatFace"
sketch15.AttachmentOffset = App.Placement(App.Vector(0, 0, 6.440008), App.Rotation())
add_polygon(sketch15, [(15.5875, -24.405167), (15.5875, -36.101194), (8.680397, -36.101194)])
add_polygon(sketch15, [(-15.5875, -24.405167), (-8.680397, -36.101194), (-15.5875, -36.101194)])
sketch15.addConstraint(Sketcher.Constraint("Vertical", 0))
sketch15.addConstraint(Sketcher.Constraint("Horizontal", 1))
sketch15.addConstraint(Sketcher.Constraint("Horizontal", 4))
sketch15.addConstraint(Sketcher.Constraint("Vertical", 5))
sketch15.addConstraint(Sketcher.Constraint("Symmetric", 1, 2, 3, 2, -2))
sketch15.addConstraint(Sketcher.Constraint("Symmetric", 2, 2, 5, 2, -2))
sketch15.addConstraint(Sketcher.Constraint("DistanceX", -1, 1, 0, 2, Q("15.5875 mm")))
sketch15.addConstraint(Sketcher.Constraint("DistanceX", 1, 2, 1, 1, Q("6.907103 mm")))
sketch15.addConstraint(Sketcher.Constraint("DistanceY", 0, 2, 0, 1, Q("11.696027 mm")))
sketch15.addConstraint(Sketcher.Constraint("DistanceY", 0, 2, -1, 1, Q("36.101194 mm")))
pocket9 = body.newObject("PartDesign::Pocket", "Pocket008")
pocket9.Profile = sketch15
pocket9.Type = "ThroughAll"
pocket9.Reversed = True

sketch16 = body.newObject("Sketcher::SketchObject", "Sketch015")
sketch16.AttachmentSupport = (doc.getObject("YZ_Plane"), [""])
sketch16.MapMode = "FlatFace"
sketch16.addGeometry(Part.LineSegment(App.Vector(-59.132149, -3.98595, 0), App.Vector(-87.296988, -20.618728, 0)), False)
sketch16.addGeometry(Part.ArcOfCircle(Part.Circle(App.Vector(-50.162379, -83.5, 0), App.Vector(0, 0, 1), 73.027621), math.radians(120.564025), math.radians(166.679832)), False)
sketch16.addGeometry(Part.LineSegment(App.Vector(-121.225399, -66.675, 0), App.Vector(-119.683023, -66.675, 0)), False)
sketch16.addGeometry(Part.ArcOfCircle(Part.Circle(App.Vector(-50.162379, -83.5, 0), App.Vector(0, 0, 1), 71.527621), math.radians(120.564025), math.radians(166.395184)), False)
sketch16.addGeometry(Part.LineSegment(App.Vector(-86.534236, -21.910321, 0), App.Vector(-58.369398, -5.277542, 0)), False)
sketch16.addGeometry(Part.LineSegment(App.Vector(-58.369398, -5.277542, 0), App.Vector(-59.132149, -3.98595, 0)), False)
sketch16.addConstraint(Sketcher.Constraint("Tangent", 0, 2, 1, 1))
sketch16.addConstraint(Sketcher.Constraint("Coincident", 1, 2, 2, 1))
sketch16.addConstraint(Sketcher.Constraint("Coincident", 2, 2, 3, 2))
sketch16.addConstraint(Sketcher.Constraint("Tangent", 3, 1, 4, 1))
sketch16.addConstraint(Sketcher.Constraint("Coincident", 4, 2, 5, 1))
sketch16.addConstraint(Sketcher.Constraint("Coincident", 5, 2, 0, 1))
sketch16.addConstraint(Sketcher.Constraint("Horizontal", 2))
sketch16.addConstraint(Sketcher.Constraint("Coincident", 3, 3, 1, 3))
sketch16.addConstraint(Sketcher.Constraint("Parallel", 0, 4))
sketch16.addConstraint(Sketcher.Constraint("Perpendicular", 4, 5))
sketch16.addConstraint(Sketcher.Constraint("DistanceY", 1, 2, -1, 1, Q("2.625 in")))
sketch16.addConstraint(Sketcher.Constraint("Radius", 1, Q("73.027621 mm")))
sketch16.addConstraint(Sketcher.Constraint("Radius", 3, Q("71.527621 mm")))
sketch16.addConstraint(Sketcher.Constraint("DistanceY", 1, 3, -1, 1, Q("83.5 mm")))
sketch16.addConstraint(Sketcher.Constraint("DistanceX", 1, 2, -1, 1, Q("121.225399 mm")))
sketch16.addConstraint(Sketcher.Constraint("Distance", 0, Q("32.70944 mm")))
sketch16.addConstraint(Sketcher.Constraint("DistanceY", 0, 2, -1, 1, Q("20.618728 mm")))
pocket10 = body.newObject("PartDesign::Pocket", "Pocket009")
pocket10.Profile = sketch16
pocket10.Length = 5.25
pocket10.Midplane = True
doc.recompute()

fillet = body.newObject("PartDesign::Fillet", "Fillet")
fillet.Base = (pocket10, edges_at(pocket10, [
    (6.35, -64.966, -7.431),
    (6.35, -107.971, -38.877),
    (-6.35, -64.966, -7.431),
    (-6.35, -107.971, -38.877),
]))
fillet.Radius = Q("0.1 in")

doc.recompute()
